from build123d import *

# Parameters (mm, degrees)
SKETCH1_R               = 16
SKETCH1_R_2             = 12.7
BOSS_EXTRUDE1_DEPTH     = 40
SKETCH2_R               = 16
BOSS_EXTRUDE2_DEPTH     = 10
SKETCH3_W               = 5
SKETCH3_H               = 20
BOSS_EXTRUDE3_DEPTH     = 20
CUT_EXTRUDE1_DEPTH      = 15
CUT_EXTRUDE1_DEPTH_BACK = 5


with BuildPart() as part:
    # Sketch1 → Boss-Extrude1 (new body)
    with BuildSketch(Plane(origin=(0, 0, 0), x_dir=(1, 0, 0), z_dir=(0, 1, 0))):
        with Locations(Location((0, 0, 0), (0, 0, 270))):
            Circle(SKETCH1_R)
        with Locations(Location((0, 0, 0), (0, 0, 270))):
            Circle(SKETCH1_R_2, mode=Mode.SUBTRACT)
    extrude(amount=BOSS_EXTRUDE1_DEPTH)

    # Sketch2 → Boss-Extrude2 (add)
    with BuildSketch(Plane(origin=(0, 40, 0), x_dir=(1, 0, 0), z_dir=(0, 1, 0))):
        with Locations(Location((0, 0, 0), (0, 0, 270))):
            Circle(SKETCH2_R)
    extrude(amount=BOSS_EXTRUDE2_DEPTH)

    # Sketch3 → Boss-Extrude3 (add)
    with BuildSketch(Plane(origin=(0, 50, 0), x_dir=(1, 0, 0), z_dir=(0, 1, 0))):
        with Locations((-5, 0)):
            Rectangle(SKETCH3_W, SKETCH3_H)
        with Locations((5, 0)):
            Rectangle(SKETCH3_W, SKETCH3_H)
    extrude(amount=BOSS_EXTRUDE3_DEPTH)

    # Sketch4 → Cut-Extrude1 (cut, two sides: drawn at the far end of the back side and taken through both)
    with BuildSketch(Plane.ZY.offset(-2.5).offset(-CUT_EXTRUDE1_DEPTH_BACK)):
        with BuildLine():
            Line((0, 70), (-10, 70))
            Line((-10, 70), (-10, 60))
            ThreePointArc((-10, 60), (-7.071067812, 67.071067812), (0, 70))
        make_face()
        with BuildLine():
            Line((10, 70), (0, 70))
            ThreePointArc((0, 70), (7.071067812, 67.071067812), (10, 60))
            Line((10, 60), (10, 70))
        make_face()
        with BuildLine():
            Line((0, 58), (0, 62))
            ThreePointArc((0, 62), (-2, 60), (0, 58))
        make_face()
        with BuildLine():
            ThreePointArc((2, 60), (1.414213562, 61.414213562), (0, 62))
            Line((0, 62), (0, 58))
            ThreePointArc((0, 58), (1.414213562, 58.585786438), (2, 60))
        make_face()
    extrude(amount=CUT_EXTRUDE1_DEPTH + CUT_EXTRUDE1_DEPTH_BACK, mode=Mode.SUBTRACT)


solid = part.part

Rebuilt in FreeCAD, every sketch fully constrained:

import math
import FreeCAD as App
import Part
import Sketcher

doc = App.newDocument("Part")
body = doc.addObject("PartDesign::Body", "Body")

# Sketch on XZ plane
sketch1 = body.newObject("Sketcher::SketchObject", "Sketch")
sketch1.AttachmentSupport = (doc.getObject("XZ_Plane"), [""])
sketch1.MapMode = "FlatFace"
sketch1.addGeometry(Part.Circle(App.Vector(0, 0, 0), App.Vector(0, 0, 1), 16), False)
sketch1.addGeometry(Part.Circle(App.Vector(0, 0, 0), App.Vector(0, 0, 1), 12.7), False)
sketch1.addConstraint(Sketcher.Constraint("Coincident", 0, 3, -1, 1))
sketch1.addConstraint(Sketcher.Constraint("Coincident", 1, 3, -1, 1))
sketch1.addConstraint(Sketcher.Constraint("Diameter", 0, 32.0))
sketch1.addConstraint(Sketcher.Constraint("Diameter", 1, 25.4))
pad1 = body.newObject("PartDesign::Pad", "Pad")
pad1.Profile = sketch1
pad1.Length = 40
pad1.Reversed = True

# Sketch on XZ plane
sketch2 = body.newObject("Sketcher::SketchObject", "Sketch001")
sketch2.AttachmentSupport = (doc.getObject("XZ_Plane"), [""])
sketch2.MapMode = "FlatFace"
sketch2.AttachmentOffset = App.Placement(App.Vector(0, 0, -40), App.Rotation())
sketch2.addGeometry(Part.Circle(App.Vector(0, 0, 0), App.Vector(0, 0, 1), 16), False)
sketch2.addConstraint(Sketcher.Constraint("Coincident", 0, 3, -1, 1))
sketch2.addConstraint(Sketcher.Constraint("Diameter", 0, 32.0))
pad2 = body.newObject("PartDesign::Pad", "Pad001")
pad2.Profile = sketch2
pad2.Length = 10
pad2.Reversed = True

# Sketch on XZ plane
sketch3 = body.newObject("Sketcher::SketchObject", "Sketch002")
sketch3.AttachmentSupport = (doc.getObject("XZ_Plane"), [""])
sketch3.MapMode = "FlatFace"
sketch3.AttachmentOffset = App.Placement(App.Vector(0, 0, -50), App.Rotation())
sketch3.addGeometry(Part.LineSegment(App.Vector(-7.5, -10, 0), App.Vector(-7.5, 10, 0)), False)
sketch3.addGeometry(Part.LineSegment(App.Vector(-7.5, 10, 0), App.Vector(-2.5, 10, 0)), False)
sketch3.addGeometry(Part.LineSegment(App.Vector(-2.5, 10, 0), App.Vector(-2.5, -10, 0)), False)
sketch3.addGeometry(Part.LineSegment(App.Vector(-2.5, -10, 0), App.Vector(-7.5, -10, 0)), False)
sketch3.addGeometry(Part.LineSegment(App.Vector(2.5, -10, 0), App.Vector(2.5, 10, 0)), False)
sketch3.addGeometry(Part.LineSegment(App.Vector(2.5, 10, 0), App.Vector(7.5, 10, 0)), False)
sketch3.addGeometry(Part.LineSegment(App.Vector(7.5, 10, 0), App.Vector(7.5, -10, 0)), False)
sketch3.addGeometry(Part.LineSegment(App.Vector(7.5, -10, 0), App.Vector(2.5, -10, 0)), False)
sketch3.addConstraint(Sketcher.Constraint("Coincident", 0, 2, 1, 1))
sketch3.addConstraint(Sketcher.Constraint("Coincident", 1, 2, 2, 1))
sketch3.addConstraint(Sketcher.Constraint("Coincident", 2, 2, 3, 1))
sketch3.addConstraint(Sketcher.Constraint("Coincident", 3, 2, 0, 1))
sketch3.addConstraint(Sketcher.Constraint("Coincident", 4, 2, 5, 1))
sketch3.addConstraint(Sketcher.Constraint("Coincident", 5, 2, 6, 1))
sketch3.addConstraint(Sketcher.Constraint("Coincident", 6, 2, 7, 1))
sketch3.addConstraint(Sketcher.Constraint("Coincident", 7, 2, 4, 1))
sketch3.addConstraint(Sketcher.Constraint("Vertical", 0))
sketch3.addConstraint(Sketcher.Constraint("Horizontal", 1))
sketch3.addConstraint(Sketcher.Constraint("Vertical", 2))
sketch3.addConstraint(Sketcher.Constraint("Horizontal", 3))
sketch3.addConstraint(Sketcher.Constraint("Vertical", 4))
sketch3.addConstraint(Sketcher.Constraint("Horizontal", 5))
sketch3.addConstraint(Sketcher.Constraint("Vertical", 6))
sketch3.addConstraint(Sketcher.Constraint("Horizontal", 7))
sketch3.addConstraint(Sketcher.Constraint("Symmetric", 2, 2, 4, 2, -1, 1))
sketch3.addConstraint(Sketcher.Constraint("Symmetric", 0, 2, 6, 2, -1, 1))
sketch3.addConstraint(Sketcher.Constraint("Horizontal", 1, 2, 4, 2))
sketch3.addConstraint(Sketcher.Constraint("DistanceX", 1, 1, 1, 2, 5.0))
sketch3.addConstraint(Sketcher.Constraint("DistanceY", 0, 1, 0, 2, 20.0))
sketch3.addConstraint(Sketcher.Constraint("DistanceX", 1, 2, 4, 2, 5.0))
pad3 = body.newObject("PartDesign::Pad", "Pad002")
pad3.Profile = sketch3
pad3.Length = 20
pad3.Reversed = True

# Sketch on YZ plane
sketch4 = body.newObject("Sketcher::SketchObject", "Sketch003")
sketch4.AttachmentSupport = (doc.getObject("YZ_Plane"), [""])
sketch4.MapMode = "FlatFace"
sketch4.AttachmentOffset = App.Placement(App.Vector(0, 0, 2.5), App.Rotation())
sketch4.addGeometry(Part.LineSegment(App.Vector(70, 0, 0), App.Vector(70, -10, 0)), False)
sketch4.addGeometry(Part.LineSegment(App.Vector(70, -10, 0), App.Vector(60, -10, 0)), False)
sketch4.addGeometry(Part.ArcOfCircle(Part.Circle(App.Vector(60, 0, 0), App.Vector(0, 0, 1), 10), math.radians(-90), math.radians(0)), False)
sketch4.addGeometry(Part.LineSegment(App.Vector(70, 10, 0), App.Vector(70, 0, 0)), False)
sketch4.addGeometry(Part.ArcOfCircle(Part.Circle(App.Vector(60, 0, 0), App.Vector(0, 0, 1), 10), math.radians(0), math.radians(90)), False)
sketch4.addGeometry(Part.LineSegment(App.Vector(60, 10, 0), App.Vector(70, 10, 0)), False)
sketch4.addGeometry(Part.ArcOfCircle(Part.Circle(App.Vector(60, 0, 0), App.Vector(0, 0, 1), 2), math.radians(180), math.radians(360)), False)
sketch4.addGeometry(Part.ArcOfCircle(Part.Circle(App.Vector(60, 0, 0), App.Vector(0, 0, 1), 2), math.radians(90), math.radians(180)), False)
sketch4.addGeometry(Part.ArcOfCircle(Part.Circle(App.Vector(60, 0, 0), App.Vector(0, 0, 1), 2), math.radians(0), math.radians(90)), False)
sketch4.addConstraint(Sketcher.Constraint("Coincident", 0, 2, 1, 1))
sketch4.addConstraint(Sketcher.Constraint("Tangent", 1, 2, 2, 1))
sketch4.addConstraint(Sketcher.Constraint("Tangent", 2, 2, 0, 1))
sketch4.addConstraint(Sketcher.Constraint("Tangent", 3, 2, 4, 1))
sketch4.addConstraint(Sketcher.Constraint("Tangent", 4, 2, 5, 1))
sketch4.addConstraint(Sketcher.Constraint("Coincident", 5, 2, 3, 1))
sketch4.addConstraint(Sketcher.Constraint("Tangent", 6, 1, 7, 2))
sketch4.addConstraint(Sketcher.Constraint("Tangent", 7, 1, 8, 2))
sketch4.addConstraint(Sketcher.Constraint("Tangent", 8, 1, 6, 2))
sketch4.addConstraint(Sketcher.Constraint("Vertical", 0))
sketch4.addConstraint(Sketcher.Constraint("Horizontal", 1))
sketch4.addConstraint(Sketcher.Constraint("Vertical", 3))
sketch4.addConstraint(Sketcher.Constraint("Horizontal", 5))
sketch4.addConstraint(Sketcher.Constraint("Coincident", 4, 3, 2, 3))
sketch4.addConstraint(Sketcher.Constraint("Coincident", 6, 3, 2, 3))
sketch4.addConstraint(Sketcher.Constraint("Equal", 2, 4))
sketch4.addConstraint(Sketcher.Constraint("PointOnObject", 2, 3, -1))
sketch4.addConstraint(Sketcher.Constraint("PointOnObject", 6, 1, -1))
sketch4.addConstraint(Sketcher.Constraint("PointOnObject", 8, 1, -1))
sketch4.addConstraint(Sketcher.Constraint("Vertical", 4, 2, 7, 1))
sketch4.addConstraint(Sketcher.Constraint("Radius", 2, 10.0))
sketch4.addConstraint(Sketcher.Constraint("Radius", 6, 2.0))
sketch4.addConstraint(Sketcher.Constraint("DistanceX", -1, 1, 2, 3, 60.0))
pocket1 = body.newObject("PartDesign::Pocket", "Pocket")
pocket1.Profile = sketch4
pocket1.Type = "ThroughAll"
pocket1.Midplane = True

doc.recompute()
